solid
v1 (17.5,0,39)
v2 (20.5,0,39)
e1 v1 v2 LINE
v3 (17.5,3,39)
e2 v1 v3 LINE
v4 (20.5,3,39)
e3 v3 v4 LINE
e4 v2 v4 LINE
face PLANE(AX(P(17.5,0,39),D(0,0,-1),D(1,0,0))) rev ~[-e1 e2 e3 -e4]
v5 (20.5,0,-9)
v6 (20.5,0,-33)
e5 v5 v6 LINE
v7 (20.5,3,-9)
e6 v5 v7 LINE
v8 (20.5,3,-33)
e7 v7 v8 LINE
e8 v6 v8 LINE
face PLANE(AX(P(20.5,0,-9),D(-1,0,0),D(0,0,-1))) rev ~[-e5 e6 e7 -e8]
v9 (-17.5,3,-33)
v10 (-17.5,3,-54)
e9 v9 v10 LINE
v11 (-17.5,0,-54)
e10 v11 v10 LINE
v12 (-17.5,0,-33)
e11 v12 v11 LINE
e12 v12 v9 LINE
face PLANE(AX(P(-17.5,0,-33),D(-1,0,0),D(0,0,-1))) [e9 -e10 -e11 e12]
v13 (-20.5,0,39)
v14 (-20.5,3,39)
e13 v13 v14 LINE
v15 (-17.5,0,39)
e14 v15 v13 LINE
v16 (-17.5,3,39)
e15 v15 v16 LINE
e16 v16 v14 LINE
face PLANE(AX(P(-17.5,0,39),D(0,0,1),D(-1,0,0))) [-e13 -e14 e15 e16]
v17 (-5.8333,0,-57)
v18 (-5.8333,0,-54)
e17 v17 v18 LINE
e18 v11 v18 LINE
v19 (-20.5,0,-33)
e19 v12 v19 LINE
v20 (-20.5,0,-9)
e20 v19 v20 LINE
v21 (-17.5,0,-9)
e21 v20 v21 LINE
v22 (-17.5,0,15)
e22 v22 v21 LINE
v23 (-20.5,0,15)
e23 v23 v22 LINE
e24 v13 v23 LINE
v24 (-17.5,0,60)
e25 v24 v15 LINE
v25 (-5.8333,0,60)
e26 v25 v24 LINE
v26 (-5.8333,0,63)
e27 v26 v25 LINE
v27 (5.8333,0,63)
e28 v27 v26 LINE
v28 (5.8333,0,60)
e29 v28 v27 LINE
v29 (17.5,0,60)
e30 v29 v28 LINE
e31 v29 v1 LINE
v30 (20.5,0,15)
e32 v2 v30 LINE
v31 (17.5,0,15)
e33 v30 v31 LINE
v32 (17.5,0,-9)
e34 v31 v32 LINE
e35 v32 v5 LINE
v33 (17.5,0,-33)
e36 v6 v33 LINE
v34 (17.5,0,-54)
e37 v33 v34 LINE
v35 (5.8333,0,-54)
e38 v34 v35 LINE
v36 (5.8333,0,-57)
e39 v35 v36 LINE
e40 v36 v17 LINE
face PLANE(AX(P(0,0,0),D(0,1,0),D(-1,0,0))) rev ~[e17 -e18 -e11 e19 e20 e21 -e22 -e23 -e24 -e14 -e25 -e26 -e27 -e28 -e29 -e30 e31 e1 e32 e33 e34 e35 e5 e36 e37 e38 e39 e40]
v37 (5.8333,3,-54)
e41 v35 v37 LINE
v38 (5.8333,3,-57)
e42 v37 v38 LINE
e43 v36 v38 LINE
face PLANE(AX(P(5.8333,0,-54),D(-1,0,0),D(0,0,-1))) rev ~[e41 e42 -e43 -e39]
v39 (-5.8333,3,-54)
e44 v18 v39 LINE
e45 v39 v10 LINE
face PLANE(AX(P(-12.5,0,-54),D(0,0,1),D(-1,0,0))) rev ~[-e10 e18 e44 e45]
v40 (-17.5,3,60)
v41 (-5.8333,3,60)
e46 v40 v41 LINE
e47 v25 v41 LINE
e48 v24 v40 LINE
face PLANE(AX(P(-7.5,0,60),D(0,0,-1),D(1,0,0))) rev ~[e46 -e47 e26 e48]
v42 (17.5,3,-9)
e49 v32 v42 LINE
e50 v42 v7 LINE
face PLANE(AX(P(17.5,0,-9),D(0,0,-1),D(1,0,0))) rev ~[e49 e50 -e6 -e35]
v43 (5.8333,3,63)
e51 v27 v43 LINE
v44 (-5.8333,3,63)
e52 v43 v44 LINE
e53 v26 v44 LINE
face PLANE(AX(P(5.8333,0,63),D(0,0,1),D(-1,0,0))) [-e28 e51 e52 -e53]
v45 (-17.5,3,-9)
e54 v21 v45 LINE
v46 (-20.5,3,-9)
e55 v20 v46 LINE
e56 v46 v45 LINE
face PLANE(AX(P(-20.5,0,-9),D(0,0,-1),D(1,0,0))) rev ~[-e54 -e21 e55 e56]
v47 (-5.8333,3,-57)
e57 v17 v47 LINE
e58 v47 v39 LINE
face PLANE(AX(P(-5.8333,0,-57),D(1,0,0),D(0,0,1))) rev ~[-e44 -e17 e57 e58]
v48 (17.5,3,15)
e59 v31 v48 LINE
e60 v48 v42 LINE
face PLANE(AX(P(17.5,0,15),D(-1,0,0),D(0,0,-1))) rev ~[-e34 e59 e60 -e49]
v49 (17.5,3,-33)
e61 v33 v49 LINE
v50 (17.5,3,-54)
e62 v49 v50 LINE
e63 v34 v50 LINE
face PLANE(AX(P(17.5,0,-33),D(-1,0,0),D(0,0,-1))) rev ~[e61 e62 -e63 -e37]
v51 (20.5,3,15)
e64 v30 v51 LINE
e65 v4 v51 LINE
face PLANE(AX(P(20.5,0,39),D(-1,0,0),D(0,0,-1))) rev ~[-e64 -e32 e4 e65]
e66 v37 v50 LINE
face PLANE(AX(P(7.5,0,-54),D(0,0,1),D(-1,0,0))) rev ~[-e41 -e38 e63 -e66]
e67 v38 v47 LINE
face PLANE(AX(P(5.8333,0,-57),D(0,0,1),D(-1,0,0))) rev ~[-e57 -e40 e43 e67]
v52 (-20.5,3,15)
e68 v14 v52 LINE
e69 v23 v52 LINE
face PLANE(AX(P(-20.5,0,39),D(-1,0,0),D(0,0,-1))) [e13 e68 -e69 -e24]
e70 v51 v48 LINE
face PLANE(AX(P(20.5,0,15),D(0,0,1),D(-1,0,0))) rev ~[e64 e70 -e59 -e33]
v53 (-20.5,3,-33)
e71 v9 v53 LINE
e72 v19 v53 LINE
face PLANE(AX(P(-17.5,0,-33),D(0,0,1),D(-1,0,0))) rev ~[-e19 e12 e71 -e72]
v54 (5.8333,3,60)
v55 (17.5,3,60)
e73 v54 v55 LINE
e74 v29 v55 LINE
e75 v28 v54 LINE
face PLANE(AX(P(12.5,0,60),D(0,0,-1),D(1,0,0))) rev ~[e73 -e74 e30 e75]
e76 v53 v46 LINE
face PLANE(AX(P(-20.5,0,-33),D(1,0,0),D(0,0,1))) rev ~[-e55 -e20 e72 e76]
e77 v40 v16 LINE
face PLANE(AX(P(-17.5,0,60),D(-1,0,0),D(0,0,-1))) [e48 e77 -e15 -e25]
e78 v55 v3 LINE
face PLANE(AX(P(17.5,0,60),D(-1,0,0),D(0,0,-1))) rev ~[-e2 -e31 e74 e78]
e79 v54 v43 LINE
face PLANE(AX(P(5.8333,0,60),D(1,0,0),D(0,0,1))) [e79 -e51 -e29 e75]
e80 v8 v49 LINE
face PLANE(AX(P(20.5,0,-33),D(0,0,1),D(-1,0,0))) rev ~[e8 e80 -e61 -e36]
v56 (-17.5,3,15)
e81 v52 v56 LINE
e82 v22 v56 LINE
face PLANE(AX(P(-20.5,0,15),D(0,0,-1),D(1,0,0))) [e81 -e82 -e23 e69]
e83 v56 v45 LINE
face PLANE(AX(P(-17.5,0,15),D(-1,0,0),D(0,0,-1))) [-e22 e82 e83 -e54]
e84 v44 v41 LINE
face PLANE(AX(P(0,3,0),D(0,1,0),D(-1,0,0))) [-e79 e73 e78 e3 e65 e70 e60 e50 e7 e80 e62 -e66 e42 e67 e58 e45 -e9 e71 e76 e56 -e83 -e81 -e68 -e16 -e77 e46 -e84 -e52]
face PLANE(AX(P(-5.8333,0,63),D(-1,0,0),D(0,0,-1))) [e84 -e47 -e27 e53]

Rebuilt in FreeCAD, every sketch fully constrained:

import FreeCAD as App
import Part
import Sketcher

V = App.Vector

doc = App.newDocument("Part")
body = doc.addObject("PartDesign::Body", "Body")

sketch1 = body.newObject("Sketcher::SketchObject", "Sketch")
sketch1.AttachmentSupport = (doc.getObject("XZ_Plane"), [""])
sketch1.MapMode = "FlatFace"
sketch1.addGeometry([
    Part.LineSegment(V(5.8333, -54, 0), V(5.8333, -57, 0)),
    Part.LineSegment(V(5.8333, -57, 0), V(-5.8333, -57, 0)),
    Part.LineSegment(V(-5.8333, -57, 0), V(-5.8333, -54, 0)),
    Part.LineSegment(V(-5.8333, -54, 0), V(-17.5, -54, 0)),
    Part.LineSegment(V(-17.5, -54, 0), V(-17.5, -33, 0)),
    Part.LineSegment(V(-17.5, -33, 0), V(-20.5, -33, 0)),
    Part.LineSegment(V(-20.5, -33, 0), V(-20.5, -9, 0)),
    Part.LineSegment(V(-20.5, -9, 0), V(-17.5, -9, 0)),
    Part.LineSegment(V(-17.5, -9, 0), V(-17.5, 15, 0)),
    Part.LineSegment(V(-17.5, 15, 0), V(-20.5, 15, 0)),
    Part.LineSegment(V(-20.5, 15, 0), V(-20.5, 39, 0)),
    Part.LineSegment(V(-20.5, 39, 0), V(-17.5, 39, 0)),
    Part.LineSegment(V(-17.5, 39, 0), V(-17.5, 60, 0)),
    Part.LineSegment(V(-17.5, 60, 0), V(-5.8333, 60, 0)),
    Part.LineSegment(V(-5.8333, 60, 0), V(-5.8333, 63, 0)),
    Part.LineSegment(V(-5.8333, 63, 0), V(5.8333, 63, 0)),
    Part.LineSegment(V(5.8333, 63, 0), V(5.8333, 60, 0)),
    Part.LineSegment(V(5.8333, 60, 0), V(17.5, 60, 0)),
    Part.LineSegment(V(17.5, 60, 0), V(17.5, 39, 0)),
    Part.LineSegment(V(17.5, 39, 0), V(20.5, 39, 0)),
    Part.LineSegment(V(20.5, 39, 0), V(20.5, 15, 0)),
    Part.LineSegment(V(20.5, 15, 0), V(17.5, 15, 0)),
    Part.LineSegment(V(17.5, 15, 0), V(17.5, -9, 0)),
    Part.LineSegment(V(17.5, -9, 0), V(20.5, -9, 0)),
    Part.LineSegment(V(20.5, -9, 0), V(20.5, -33, 0)),
    Part.LineSegment(V(20.5, -33, 0), V(17.5, -33, 0)),
    Part.LineSegment(V(17.5, -33, 0), V(17.5, -54, 0)),
    Part.LineSegment(V(17.5, -54, 0), V(5.8333, -54, 0)),
], False)
sketch1.addConstraint([
    Sketcher.Constraint("Coincident", 0, 2, 1, 1),
    Sketcher.Constraint("Coincident", 1, 2, 2, 1),
    Sketcher.Constraint("Coincident", 2, 2, 3, 1),
    Sketcher.Constraint("Coincident", 3, 2, 4, 1),
    Sketcher.Constraint("Coincident", 4, 2, 5, 1),
    Sketcher.Constraint("Coincident", 5, 2, 6, 1),
    Sketcher.Constraint("Coincident", 6, 2, 7, 1),
    Sketcher.Constraint("Coincident", 7, 2, 8, 1),
    Sketcher.Constraint("Coincident", 8, 2, 9, 1),
    Sketcher.Constraint("Coincident", 9, 2, 10, 1),
    Sketcher.Constraint("Coincident", 10, 2, 11, 1),
    Sketcher.Constraint("Coincident", 11, 2, 12, 1),
    Sketcher.Constraint("Coincident", 12, 2, 13, 1),
    Sketcher.Constraint("Coincident", 13, 2, 14, 1),
    Sketcher.Constraint("Coincident", 14, 2, 15, 1),
    Sketcher.Constraint("Coincident", 15, 2, 16, 1),
    Sketcher.Constraint("Coincident", 16, 2, 17, 1),
    Sketcher.Constraint("Coincident", 17, 2, 18, 1),
    Sketcher.Constraint("Coincident", 18, 2, 19, 1),
    Sketcher.Constraint("Coincident", 19, 2, 20, 1),
    Sketcher.Constraint("Coincident", 20, 2, 21, 1),
    Sketcher.Constraint("Coincident", 21, 2, 22, 1),
    Sketcher.Constraint("Coincident", 22, 2, 23, 1),
    Sketcher.Constraint("Coincident", 23, 2, 24, 1),
    Sketcher.Constraint("Coincident", 24, 2, 25, 1),
    Sketcher.Constraint("Coincident", 25, 2, 26, 1),
    Sketcher.Constraint("Coincident", 26, 2, 27, 1),
    Sketcher.Constraint("Coincident", 27, 2, 0, 1),
    Sketcher.Constraint("Vertical", 0),
    Sketcher.Constraint("Horizontal", 1),
    Sketcher.Constraint("Vertical", 2),
    Sketcher.Constraint("Horizontal", 3),
    Sketcher.Constraint("Vertical", 4),
    Sketcher.Constraint("Horizontal", 5),
    Sketcher.Constraint("Vertical", 6),
    Sketcher.Constraint("Horizontal", 7),
    Sketcher.Constraint("Vertical", 8),
    Sketcher.Constraint("Horizontal", 9),
    Sketcher.Constraint("Vertical", 10),
    Sketcher.Constraint("Horizontal", 11),
    Sketcher.Constraint("Vertical", 12),
    Sketcher.Constraint("Horizontal", 13),
    Sketcher.Constraint("Vertical", 14),
    Sketcher.Constraint("Horizontal", 15),
    Sketcher.Constraint("Vertical", 16),
    Sketcher.Constraint("Horizontal", 17),
    Sketcher.Constraint("Vertical", 18),
    Sketcher.Constraint("Horizontal", 19),
    Sketcher.Constraint("Vertical", 20),
    Sketcher.Constraint("Horizontal", 21),
    Sketcher.Constraint("Vertical", 22),
    Sketcher.Constraint("Horizontal", 23),
    Sketcher.Constraint("Vertical", 24),
    Sketcher.Constraint("Horizontal", 25),
    Sketcher.Constraint("Vertical", 26),
    Sketcher.Constraint("Horizontal", 27),
    Sketcher.Constraint("Symmetric", 13, 2, 16, 2, -2),
    Sketcher.Constraint("Symmetric", 11, 2, 18, 2, -2),
    Sketcher.Constraint("Symmetric", 9, 2, 20, 2, -2),
    Sketcher.Constraint("Symmetric", 7, 2, 22, 2, -2),
    Sketcher.Constraint("Symmetric", 5, 2, 24, 2, -2),
    Sketcher.Constraint("Symmetric", 3, 2, 26, 2, -2),
    Sketcher.Constraint("Vertical", 4, 2, 7, 2),
    Sketcher.Constraint("Vertical", 6, 2, 9, 2),
    Sketcher.Constraint("Vertical", 8, 2, 11, 2),
    Sketcher.Constraint("Vertical", 2, 2, 13, 2),
    Sketcher.Constraint("Vertical", 0, 2, 15, 2),
    Sketcher.Constraint("Equal", 1, 3),
    Sketcher.Constraint("Equal", 25, 0),
    Sketcher.Constraint("Equal", 6, 8),
    Sketcher.Constraint("Equal", 8, 10),
    Sketcher.Constraint("Equal", 4, 12),
    Sketcher.Constraint("Equal", 2, 14),
    Sketcher.Constraint("DistanceX", 5, 2, 5, 1, 3.0),
    Sketcher.Constraint("DistanceY", 4, 1, 4, 2, 21.0),
    Sketcher.Constraint("DistanceY", 6, 1, 6, 2, 24.0),
    Sketcher.Constraint("DistanceY", -1, 1, 12, 2, 60.0),
    Sketcher.Constraint("DistanceX", 12, 2, 17, 2, 35.0),
])
pad1 = body.newObject("PartDesign::Pad", "Pad")
pad1.Profile = sketch1
pad1.Length = 3
pad1.Reversed = True

doc.recompute()
